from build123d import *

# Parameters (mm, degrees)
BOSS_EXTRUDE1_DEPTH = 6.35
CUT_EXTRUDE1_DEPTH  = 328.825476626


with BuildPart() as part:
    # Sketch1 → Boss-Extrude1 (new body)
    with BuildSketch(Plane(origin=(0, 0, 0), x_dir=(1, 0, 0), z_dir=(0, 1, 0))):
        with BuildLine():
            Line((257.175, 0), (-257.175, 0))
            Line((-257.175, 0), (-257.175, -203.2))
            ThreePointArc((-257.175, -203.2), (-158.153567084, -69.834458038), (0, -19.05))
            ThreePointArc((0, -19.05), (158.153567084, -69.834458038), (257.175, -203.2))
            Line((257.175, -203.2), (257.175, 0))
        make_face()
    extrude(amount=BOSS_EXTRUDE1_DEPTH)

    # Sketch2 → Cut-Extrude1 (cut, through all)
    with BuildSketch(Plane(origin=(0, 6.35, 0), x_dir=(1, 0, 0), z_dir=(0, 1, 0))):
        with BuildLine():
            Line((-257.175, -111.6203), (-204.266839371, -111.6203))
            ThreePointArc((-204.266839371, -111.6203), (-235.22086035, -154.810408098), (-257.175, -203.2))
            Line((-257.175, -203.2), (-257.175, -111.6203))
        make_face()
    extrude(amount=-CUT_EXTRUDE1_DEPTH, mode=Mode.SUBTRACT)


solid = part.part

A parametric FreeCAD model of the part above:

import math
import FreeCAD as App
import Part
import Sketcher
Q = App.Units.Quantity

doc = App.newDocument("Part")
body = doc.addObject("PartDesign::Body", "Body")

# Sketch on XZ plane
sketch1 = body.newObject("Sketcher::SketchObject", "Sketch")
sketch1.AttachmentSupport = (doc.getObject("XZ_Plane"), [""])
sketch1.MapMode = "FlatFace"
sketch1.addGeometry(Part.LineSegment(App.Vector(257.175, 0, 0), App.Vector(-257.175, 0, 0)), False)
sketch1.addGeometry(Part.LineSegment(App.Vector(-257.175, 0, 0), App.Vector(-257.175, 203.2, 0)), False)
sketch1.addGeometry(Part.ArcOfCircle(Part.Circle(App.Vector(0, 290.704095, 0), App.Vector(0, 0, 1), 271.654095), math.radians(-161.209068), math.radians(-90)), False)
sketch1.addGeometry(Part.ArcOfCircle(Part.Circle(App.Vector(0, 290.704095, 0), App.Vector(0, 0, 1), 271.654095), math.radians(-90), math.radians(-18.790932)), False)
sketch1.addGeometry(Part.LineSegment(App.Vector(257.175, 203.2, 0), App.Vector(257.175, 0, 0)), False)
sketch1.addConstraint(Sketcher.Constraint("Coincident", 0, 2, 1, 1))
sketch1.addConstraint(Sketcher.Constraint("Coincident", 1, 2, 2, 1))
sketch1.addConstraint(Sketcher.Constraint("Tangent", 2, 2, 3, 1))
sketch1.addConstraint(Sketcher.Constraint("Coincident", 3, 2, 4, 1))
sketch1.addConstraint(Sketcher.Constraint("Coincident", 4, 2, 0, 1))
sketch1.addConstraint(Sketcher.Constraint("Horizontal", 0))
sketch1.addConstraint(Sketcher.Constraint("Vertical", 1))
sketch1.addConstraint(Sketcher.Constraint("Vertical", 4))
sketch1.addConstraint(Sketcher.Constraint("Equal", 2, 3))
sketch1.addConstraint(Sketcher.Constraint("Symmetric", 0, 2, 4, 2, -1, 1))
sketch1.addConstraint(Sketcher.Constraint("PointOnObject", 2, 3, -2))
sketch1.addConstraint(Sketcher.Constraint("PointOnObject", 2, 2, -2))
sketch1.addConstraint(Sketcher.Constraint("DistanceY", 1, 1, 1, 2, Q("8 in")))
sketch1.addConstraint(Sketcher.Constraint("DistanceX", 0, 2, 0, 1, Q("20.25 in")))
sketch1.addConstraint(Sketcher.Constraint("DistanceY", -1, 1, 2, 2, Q("0.75 in")))
pad1 = body.newObject("PartDesign::Pad", "Pad")
pad1.Profile = sketch1
pad1.Length = Q("0.25 in")
pad1.Reversed = True

# Sketch on XZ plane
sketch2 = body.newObject("Sketcher::SketchObject", "Sketch001")
sketch2.AttachmentSupport = (doc.getObject("XZ_Plane"), [""])
sketch2.MapMode = "FlatFace"
sketch2.AttachmentOffset = App.Placement(App.Vector(0, 0, -0.25 * 25.4), App.Rotation())
sketch2.addGeometry(Part.LineSegment(App.Vector(-204.266839, 111.6203, 0), App.Vector(-257.175, 111.6203, 0)), False)
sketch2.addGeometry(Part.LineSegment(App.Vector(-257.175, 111.6203, 0), App.Vector(-257.175, 203.2, 0)), False)
sketch2.addGeometry(Part.ArcOfCircle(Part.Circle(App.Vector(0, 290.704095, 0), App.Vector(0, 0, 1), 271.654095), math.radians(-161.209068), math.radians(-138.75847)), False)
sketch2.addConstraint(Sketcher.Constraint("Coincident", 0, 2, 1, 1))
sketch2.addConstraint(Sketcher.Constraint("Coincident", 1, 2, 2, 1))
sketch2.addConstraint(Sketcher.Constraint("Coincident", 2, 2, 0, 1))
sketch2.addConstraint(Sketcher.Constraint("Horizontal", 0))
sketch2.addConstraint(Sketcher.Constraint("Vertical", 1))
sketch2.addConstraint(Sketcher.Constraint("PointOnObject", 2, 3, -2))
sketch2.addConstraint(Sketcher.Constraint("DistanceY", -1, 1, 1, 2, Q("8 in")))
sketch2.addConstraint(Sketcher.Constraint("DistanceY", 1, 1, 1, 2, Q("3.6055 in")))
sketch2.addConstraint(Sketcher.Constraint("DistanceX", 0, 2, -1, 1, Q("10.125 in")))
sketch2.addConstraint(Sketcher.Constraint("Radius", 2, 271.654095))
pocket1 = body.newObject("PartDesign::Pocket", "Pocket")
pocket1.Profile = sketch2
pocket1.Type = "ThroughAll"
pocket1.Reversed = True

doc.recompute()
